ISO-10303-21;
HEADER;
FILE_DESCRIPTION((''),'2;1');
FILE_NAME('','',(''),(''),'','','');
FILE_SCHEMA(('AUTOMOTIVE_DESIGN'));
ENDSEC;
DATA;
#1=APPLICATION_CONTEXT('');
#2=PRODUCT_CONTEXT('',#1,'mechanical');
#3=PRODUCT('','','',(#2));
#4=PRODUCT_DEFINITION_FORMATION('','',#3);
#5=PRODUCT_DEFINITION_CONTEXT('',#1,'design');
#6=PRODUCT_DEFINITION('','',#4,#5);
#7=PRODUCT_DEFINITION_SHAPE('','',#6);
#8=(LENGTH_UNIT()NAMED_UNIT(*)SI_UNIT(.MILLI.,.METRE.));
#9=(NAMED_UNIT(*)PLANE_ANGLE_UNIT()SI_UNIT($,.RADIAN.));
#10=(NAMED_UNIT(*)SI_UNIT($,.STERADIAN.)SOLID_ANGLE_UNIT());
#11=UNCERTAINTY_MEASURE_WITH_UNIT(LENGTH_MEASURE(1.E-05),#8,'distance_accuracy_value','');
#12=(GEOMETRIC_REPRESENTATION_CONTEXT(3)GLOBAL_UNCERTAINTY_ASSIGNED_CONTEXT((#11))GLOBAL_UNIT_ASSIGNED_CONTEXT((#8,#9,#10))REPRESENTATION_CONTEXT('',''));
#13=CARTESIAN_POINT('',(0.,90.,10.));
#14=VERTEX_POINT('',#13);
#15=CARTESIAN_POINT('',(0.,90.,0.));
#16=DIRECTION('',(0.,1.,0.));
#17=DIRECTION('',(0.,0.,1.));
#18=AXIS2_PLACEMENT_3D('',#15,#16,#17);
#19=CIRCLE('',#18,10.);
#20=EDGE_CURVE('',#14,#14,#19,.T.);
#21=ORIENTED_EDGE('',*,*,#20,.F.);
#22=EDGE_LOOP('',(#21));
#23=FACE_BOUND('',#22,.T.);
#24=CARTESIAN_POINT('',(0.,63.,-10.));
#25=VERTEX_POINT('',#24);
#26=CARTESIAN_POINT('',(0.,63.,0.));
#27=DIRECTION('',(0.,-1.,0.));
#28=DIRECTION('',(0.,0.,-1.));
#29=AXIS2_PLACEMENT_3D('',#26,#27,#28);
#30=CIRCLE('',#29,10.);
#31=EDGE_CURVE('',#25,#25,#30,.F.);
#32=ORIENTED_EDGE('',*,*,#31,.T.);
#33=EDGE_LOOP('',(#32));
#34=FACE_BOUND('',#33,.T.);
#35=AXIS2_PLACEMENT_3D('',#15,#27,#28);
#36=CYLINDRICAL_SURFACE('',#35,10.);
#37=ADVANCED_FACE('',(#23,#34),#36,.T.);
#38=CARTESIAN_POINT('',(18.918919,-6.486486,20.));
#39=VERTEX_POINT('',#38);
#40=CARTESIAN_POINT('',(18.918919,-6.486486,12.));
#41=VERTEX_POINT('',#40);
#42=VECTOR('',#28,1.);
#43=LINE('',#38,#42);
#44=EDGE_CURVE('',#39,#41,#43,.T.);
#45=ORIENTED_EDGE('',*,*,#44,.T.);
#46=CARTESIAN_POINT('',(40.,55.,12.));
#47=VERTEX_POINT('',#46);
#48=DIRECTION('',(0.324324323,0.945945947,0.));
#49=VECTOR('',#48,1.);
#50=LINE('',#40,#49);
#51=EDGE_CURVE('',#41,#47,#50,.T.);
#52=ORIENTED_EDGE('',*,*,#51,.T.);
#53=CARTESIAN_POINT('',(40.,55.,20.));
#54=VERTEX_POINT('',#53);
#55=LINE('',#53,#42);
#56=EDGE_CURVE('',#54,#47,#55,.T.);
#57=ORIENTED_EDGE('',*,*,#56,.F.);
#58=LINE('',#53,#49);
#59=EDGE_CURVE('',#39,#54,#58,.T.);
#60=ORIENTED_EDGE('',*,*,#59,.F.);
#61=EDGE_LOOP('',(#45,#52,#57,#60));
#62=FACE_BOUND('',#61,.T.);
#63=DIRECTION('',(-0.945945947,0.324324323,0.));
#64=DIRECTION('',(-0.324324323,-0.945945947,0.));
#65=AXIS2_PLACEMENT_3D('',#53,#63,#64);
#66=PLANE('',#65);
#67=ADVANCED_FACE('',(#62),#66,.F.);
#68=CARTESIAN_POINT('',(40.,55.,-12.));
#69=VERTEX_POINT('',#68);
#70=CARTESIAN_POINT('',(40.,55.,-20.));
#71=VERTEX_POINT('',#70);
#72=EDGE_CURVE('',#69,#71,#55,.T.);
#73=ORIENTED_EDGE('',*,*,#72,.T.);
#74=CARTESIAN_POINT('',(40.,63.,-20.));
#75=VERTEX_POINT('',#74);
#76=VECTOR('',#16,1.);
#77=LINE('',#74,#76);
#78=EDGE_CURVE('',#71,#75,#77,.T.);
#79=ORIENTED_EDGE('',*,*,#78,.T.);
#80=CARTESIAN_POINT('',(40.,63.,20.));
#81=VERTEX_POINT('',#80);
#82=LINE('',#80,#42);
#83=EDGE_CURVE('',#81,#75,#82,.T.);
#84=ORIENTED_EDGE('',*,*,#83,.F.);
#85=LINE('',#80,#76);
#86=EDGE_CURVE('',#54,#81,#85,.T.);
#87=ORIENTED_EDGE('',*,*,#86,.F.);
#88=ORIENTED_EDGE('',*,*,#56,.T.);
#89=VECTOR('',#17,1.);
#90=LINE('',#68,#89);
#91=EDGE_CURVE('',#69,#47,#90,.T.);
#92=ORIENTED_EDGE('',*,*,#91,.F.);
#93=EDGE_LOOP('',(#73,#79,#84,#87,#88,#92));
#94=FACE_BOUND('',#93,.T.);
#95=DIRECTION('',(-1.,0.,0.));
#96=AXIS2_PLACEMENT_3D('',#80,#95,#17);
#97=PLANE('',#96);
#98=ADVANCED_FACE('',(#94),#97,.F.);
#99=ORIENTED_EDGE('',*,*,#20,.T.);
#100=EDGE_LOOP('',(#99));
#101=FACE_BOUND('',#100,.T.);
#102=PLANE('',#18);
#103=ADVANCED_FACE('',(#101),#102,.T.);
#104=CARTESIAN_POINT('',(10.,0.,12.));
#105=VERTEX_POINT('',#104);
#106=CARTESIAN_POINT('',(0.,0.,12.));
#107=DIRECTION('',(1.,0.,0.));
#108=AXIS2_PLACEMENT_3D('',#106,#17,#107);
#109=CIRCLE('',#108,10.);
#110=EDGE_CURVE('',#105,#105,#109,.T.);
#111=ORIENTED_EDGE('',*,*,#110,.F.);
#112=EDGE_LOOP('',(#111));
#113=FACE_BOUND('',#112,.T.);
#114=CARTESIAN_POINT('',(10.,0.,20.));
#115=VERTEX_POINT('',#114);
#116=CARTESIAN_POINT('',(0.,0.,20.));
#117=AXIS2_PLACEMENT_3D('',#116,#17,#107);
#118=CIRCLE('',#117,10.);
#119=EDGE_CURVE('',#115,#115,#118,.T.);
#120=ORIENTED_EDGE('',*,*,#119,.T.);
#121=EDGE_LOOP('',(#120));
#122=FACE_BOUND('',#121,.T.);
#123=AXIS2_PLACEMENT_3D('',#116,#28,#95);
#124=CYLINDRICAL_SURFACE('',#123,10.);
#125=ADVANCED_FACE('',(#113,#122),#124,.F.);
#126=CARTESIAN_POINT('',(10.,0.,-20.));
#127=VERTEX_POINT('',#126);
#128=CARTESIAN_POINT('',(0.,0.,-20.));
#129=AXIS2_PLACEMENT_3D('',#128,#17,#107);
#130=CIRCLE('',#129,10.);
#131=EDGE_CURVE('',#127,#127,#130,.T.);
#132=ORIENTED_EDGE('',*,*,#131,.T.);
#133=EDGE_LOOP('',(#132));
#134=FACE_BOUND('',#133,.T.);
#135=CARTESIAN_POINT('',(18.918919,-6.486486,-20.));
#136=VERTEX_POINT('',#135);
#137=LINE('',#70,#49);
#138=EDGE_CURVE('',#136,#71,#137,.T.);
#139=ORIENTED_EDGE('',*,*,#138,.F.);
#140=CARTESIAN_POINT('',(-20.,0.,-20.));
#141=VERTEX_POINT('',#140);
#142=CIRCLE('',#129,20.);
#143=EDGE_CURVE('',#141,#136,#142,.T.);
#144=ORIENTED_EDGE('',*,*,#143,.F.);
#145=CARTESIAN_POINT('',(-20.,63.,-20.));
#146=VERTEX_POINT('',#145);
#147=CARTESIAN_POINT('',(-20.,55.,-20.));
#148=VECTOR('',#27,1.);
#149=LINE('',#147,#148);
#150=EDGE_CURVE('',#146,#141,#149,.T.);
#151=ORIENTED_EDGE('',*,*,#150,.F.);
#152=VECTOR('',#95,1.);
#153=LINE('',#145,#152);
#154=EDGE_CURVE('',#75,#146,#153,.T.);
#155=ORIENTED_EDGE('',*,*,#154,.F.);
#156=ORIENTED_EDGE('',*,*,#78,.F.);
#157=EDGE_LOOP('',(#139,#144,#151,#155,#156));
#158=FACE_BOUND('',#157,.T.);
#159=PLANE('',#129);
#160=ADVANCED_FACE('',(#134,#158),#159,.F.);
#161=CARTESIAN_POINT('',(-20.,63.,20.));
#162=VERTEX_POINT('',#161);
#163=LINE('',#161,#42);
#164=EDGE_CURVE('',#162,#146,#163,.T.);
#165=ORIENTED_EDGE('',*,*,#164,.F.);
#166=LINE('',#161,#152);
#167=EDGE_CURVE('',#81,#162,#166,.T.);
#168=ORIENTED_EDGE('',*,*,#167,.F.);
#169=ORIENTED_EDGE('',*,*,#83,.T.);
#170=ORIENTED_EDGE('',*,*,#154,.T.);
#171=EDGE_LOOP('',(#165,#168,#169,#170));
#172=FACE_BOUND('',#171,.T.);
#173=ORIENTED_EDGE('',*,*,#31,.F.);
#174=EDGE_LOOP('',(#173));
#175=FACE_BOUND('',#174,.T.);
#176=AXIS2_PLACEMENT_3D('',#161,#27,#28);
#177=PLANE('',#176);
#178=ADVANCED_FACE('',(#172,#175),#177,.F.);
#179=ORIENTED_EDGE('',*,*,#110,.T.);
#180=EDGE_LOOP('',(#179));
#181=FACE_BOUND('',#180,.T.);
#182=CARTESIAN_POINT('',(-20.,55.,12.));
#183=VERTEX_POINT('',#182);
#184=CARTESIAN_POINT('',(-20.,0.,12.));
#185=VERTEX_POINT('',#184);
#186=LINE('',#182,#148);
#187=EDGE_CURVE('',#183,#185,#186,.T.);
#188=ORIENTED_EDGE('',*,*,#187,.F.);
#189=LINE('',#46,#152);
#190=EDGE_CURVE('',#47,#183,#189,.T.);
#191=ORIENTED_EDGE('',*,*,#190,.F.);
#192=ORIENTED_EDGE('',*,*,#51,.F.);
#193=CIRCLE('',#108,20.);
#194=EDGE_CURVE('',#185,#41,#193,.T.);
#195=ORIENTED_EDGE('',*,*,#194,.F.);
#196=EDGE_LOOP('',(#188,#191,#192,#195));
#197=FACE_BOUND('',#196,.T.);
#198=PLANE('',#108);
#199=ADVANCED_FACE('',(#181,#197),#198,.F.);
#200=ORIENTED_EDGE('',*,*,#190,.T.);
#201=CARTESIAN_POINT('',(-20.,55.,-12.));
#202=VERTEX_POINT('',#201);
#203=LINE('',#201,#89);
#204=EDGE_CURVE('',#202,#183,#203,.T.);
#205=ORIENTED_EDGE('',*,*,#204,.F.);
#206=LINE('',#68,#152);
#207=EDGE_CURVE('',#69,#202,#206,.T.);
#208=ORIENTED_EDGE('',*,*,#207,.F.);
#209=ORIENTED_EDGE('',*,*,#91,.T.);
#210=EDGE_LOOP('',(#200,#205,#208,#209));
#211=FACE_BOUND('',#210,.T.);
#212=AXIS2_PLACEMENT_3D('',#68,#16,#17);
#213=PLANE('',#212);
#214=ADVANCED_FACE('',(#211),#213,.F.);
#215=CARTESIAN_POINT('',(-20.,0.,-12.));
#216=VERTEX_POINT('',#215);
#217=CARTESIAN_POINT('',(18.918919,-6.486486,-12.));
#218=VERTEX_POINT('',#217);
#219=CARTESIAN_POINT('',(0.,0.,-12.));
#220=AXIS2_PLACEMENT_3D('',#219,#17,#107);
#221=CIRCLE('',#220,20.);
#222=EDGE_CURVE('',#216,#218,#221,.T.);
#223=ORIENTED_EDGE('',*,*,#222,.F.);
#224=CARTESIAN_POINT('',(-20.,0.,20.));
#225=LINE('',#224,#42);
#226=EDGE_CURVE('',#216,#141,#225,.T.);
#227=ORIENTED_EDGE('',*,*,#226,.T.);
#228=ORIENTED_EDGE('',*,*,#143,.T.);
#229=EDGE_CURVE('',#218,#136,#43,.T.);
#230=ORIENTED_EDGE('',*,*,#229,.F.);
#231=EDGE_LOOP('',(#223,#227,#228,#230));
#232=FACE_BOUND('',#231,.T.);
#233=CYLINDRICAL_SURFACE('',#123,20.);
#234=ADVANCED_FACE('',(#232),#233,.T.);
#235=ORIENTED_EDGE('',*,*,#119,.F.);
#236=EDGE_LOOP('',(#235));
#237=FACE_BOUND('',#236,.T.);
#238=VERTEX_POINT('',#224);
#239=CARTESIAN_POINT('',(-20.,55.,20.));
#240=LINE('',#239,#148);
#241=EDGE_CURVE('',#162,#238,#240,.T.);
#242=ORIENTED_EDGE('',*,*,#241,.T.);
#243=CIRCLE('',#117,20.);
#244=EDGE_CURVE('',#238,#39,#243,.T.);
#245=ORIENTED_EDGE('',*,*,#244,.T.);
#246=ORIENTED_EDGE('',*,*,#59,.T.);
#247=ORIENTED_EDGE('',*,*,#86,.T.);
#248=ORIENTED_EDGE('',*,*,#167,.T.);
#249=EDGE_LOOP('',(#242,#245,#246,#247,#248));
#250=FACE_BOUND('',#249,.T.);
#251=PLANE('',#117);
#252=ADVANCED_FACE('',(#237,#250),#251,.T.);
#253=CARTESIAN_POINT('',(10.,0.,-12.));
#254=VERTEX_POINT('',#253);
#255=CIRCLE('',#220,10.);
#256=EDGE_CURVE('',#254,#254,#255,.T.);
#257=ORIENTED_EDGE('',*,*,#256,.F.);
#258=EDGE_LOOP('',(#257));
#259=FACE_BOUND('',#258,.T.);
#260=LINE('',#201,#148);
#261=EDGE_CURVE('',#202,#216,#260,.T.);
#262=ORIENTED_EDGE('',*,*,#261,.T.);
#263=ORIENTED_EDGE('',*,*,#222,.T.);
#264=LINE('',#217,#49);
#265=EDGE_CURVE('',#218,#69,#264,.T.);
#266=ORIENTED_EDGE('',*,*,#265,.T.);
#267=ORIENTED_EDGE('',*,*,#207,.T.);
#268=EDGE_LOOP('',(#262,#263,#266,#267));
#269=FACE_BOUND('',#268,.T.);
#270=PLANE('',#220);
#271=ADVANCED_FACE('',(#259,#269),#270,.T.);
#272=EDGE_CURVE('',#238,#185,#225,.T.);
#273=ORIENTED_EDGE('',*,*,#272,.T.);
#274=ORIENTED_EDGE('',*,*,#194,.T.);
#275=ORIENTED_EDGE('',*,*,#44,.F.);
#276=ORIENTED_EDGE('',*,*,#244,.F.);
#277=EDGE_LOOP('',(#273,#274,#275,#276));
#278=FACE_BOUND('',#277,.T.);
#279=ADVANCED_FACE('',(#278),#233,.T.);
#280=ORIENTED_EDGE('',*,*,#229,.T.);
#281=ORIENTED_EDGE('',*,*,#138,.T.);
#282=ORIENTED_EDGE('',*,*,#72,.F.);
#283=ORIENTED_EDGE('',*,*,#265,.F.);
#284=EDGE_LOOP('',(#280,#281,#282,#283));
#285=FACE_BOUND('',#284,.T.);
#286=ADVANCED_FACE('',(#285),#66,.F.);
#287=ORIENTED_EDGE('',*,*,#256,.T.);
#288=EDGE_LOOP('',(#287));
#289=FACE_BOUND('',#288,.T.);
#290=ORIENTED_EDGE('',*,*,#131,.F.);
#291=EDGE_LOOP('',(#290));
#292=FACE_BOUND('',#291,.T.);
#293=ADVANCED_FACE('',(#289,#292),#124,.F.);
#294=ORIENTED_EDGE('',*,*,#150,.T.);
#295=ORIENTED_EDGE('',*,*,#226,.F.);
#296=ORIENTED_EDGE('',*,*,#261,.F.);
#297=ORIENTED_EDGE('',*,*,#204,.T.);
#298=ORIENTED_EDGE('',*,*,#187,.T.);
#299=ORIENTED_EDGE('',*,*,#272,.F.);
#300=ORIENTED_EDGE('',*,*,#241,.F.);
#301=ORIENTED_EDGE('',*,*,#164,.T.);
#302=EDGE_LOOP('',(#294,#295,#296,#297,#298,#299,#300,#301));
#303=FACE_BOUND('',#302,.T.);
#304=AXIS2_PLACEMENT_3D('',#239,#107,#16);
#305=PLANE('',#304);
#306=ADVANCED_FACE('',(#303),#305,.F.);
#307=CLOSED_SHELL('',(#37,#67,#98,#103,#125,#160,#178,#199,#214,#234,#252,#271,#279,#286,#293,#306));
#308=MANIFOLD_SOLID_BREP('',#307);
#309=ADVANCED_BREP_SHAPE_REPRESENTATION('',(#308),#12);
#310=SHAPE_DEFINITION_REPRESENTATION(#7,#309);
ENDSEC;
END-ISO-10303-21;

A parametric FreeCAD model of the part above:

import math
import FreeCAD as App
import Part
import Sketcher

V = App.Vector
Q = App.Units.Quantity

doc = App.newDocument("Part")
body = doc.addObject("PartDesign::Body", "Body")

sketch1 = body.newObject("Sketcher::SketchObject", "Sketch")
sketch1.AttachmentSupport = (doc.getObject("XY_Plane"), [""])
sketch1.MapMode = "FlatFace"
sketch1.addGeometry(Part.LineSegment(V(19, -6, 0), V(40, 55, 0)), False)
sketch1.addGeometry(Part.LineSegment(V(40, 55, 0), V(40, 63, 0)), False)
sketch1.addGeometry(Part.LineSegment(V(40, 63, 0), V(-20, 63, 0)), False)
sketch1.addGeometry(Part.LineSegment(V(-20, 63, 0), V(-20, 0, 0)), False)
sketch1.addGeometry(Part.ArcOfCircle(Part.Circle(V(0, 0, 0), V(0, 0, 1), 20), math.radians(180), math.radians(341)), False)
sketch1.addGeometry(Part.Circle(V(0, 0, 0), V(0, 0, 1), 10), False)
sketch1.addConstraint(Sketcher.Constraint("Coincident", 0, 2, 1, 1))
sketch1.addConstraint(Sketcher.Constraint("Coincident", 1, 2, 2, 1))
sketch1.addConstraint(Sketcher.Constraint("Coincident", 2, 2, 3, 1))
sketch1.addConstraint(Sketcher.Constraint("Tangent", 3, 2, 4, 1))
sketch1.addConstraint(Sketcher.Constraint("Tangent", 4, 2, 0, 1))
sketch1.addConstraint(Sketcher.Constraint("Vertical", 1))
sketch1.addConstraint(Sketcher.Constraint("Horizontal", 2))
sketch1.addConstraint(Sketcher.Constraint("Vertical", 3))
sketch1.addConstraint(Sketcher.Constraint("Coincident", 4, 3, -1, 1))
sketch1.addConstraint(Sketcher.Constraint("Coincident", 5, 3, -1, 1))
sketch1.addConstraint(Sketcher.Constraint("Diameter", 5, Q("20 mm")))
sketch1.addConstraint(Sketcher.Constraint("Radius", 4, Q("20 mm")))
sketch1.addConstraint(Sketcher.Constraint("DistanceX", 2, 2, 2, 1, Q("60 mm")))
sketch1.addConstraint(Sketcher.Constraint("DistanceY", 1, 1, 1, 2, Q("8 mm")))
sketch1.addConstraint(Sketcher.Constraint("DistanceY", 3, 2, 3, 1, Q("63 mm")))
pad1 = body.newObject("PartDesign::Pad", "Pad")
pad1.Profile = sketch1
pad1.Length = 40
pad1.Midplane = True

sketch2 = body.newObject("Sketcher::SketchObject", "Sketch001")
sketch2.AttachmentSupport = (doc.getObject("XY_Plane"), [""])
sketch2.MapMode = "FlatFace"
sketch2.addGeometry(Part.LineSegment(V(19, -6, 0), V(40, 55, 0)), False)
sketch2.addGeometry(Part.LineSegment(V(40, 55, 0), V(-20, 55, 0)), False)
sketch2.addGeometry(Part.LineSegment(V(-20, 55, 0), V(-20, 0, 0)), False)
sketch2.addGeometry(Part.ArcOfCircle(Part.Circle(V(0, 0, 0), V(0, 0, 1), 20), math.radians(180), math.radians(341)), False)
sketch2.addConstraint(Sketcher.Constraint("Coincident", 0, 2, 1, 1))
sketch2.addConstraint(Sketcher.Constraint("Coincident", 1, 2, 2, 1))
sketch2.addConstraint(Sketcher.Constraint("Tangent", 2, 2, 3, 1))
sketch2.addConstraint(Sketcher.Constraint("Tangent", 3, 2, 0, 1))
sketch2.addConstraint(Sketcher.Constraint("Horizontal", 1))
sketch2.addConstraint(Sketcher.Constraint("Vertical", 2))
sketch2.addConstraint(Sketcher.Constraint("Coincident", 3, 3, -1, 1))
sketch2.addConstraint(Sketcher.Constraint("Radius", 3, Q("20 mm")))
sketch2.addConstraint(Sketcher.Constraint("DistanceX", 1, 2, 1, 1, Q("60 mm")))
sketch2.addConstraint(Sketcher.Constraint("DistanceY", 2, 2, 2, 1, Q("55 mm")))
pocket1 = body.newObject("PartDesign::Pocket", "Pocket")
pocket1.Profile = sketch2
pocket1.Length = 24
pocket1.Midplane = True

sketch3 = body.newObject("Sketcher::SketchObject", "Sketch002")
sketch3.AttachmentSupport = (doc.getObject("XZ_Plane"), [""])
sketch3.MapMode = "FlatFace"
sketch3.AttachmentOffset = App.Placement(V(0, 0, -63), App.Rotation())
sketch3.addGeometry(Part.Circle(V(0, 0, 0), V(0, 0, 1), 10), False)
sketch3.addConstraint(Sketcher.Constraint("Coincident", 0, 3, -1, 1))
sketch3.addConstraint(Sketcher.Constraint("Diameter", 0, Q("20 mm")))
pad2 = body.newObject("PartDesign::Pad", "Pad001")
pad2.Profile = sketch3
pad2.Length = 27
pad2.Reversed = True

doc.recompute()
